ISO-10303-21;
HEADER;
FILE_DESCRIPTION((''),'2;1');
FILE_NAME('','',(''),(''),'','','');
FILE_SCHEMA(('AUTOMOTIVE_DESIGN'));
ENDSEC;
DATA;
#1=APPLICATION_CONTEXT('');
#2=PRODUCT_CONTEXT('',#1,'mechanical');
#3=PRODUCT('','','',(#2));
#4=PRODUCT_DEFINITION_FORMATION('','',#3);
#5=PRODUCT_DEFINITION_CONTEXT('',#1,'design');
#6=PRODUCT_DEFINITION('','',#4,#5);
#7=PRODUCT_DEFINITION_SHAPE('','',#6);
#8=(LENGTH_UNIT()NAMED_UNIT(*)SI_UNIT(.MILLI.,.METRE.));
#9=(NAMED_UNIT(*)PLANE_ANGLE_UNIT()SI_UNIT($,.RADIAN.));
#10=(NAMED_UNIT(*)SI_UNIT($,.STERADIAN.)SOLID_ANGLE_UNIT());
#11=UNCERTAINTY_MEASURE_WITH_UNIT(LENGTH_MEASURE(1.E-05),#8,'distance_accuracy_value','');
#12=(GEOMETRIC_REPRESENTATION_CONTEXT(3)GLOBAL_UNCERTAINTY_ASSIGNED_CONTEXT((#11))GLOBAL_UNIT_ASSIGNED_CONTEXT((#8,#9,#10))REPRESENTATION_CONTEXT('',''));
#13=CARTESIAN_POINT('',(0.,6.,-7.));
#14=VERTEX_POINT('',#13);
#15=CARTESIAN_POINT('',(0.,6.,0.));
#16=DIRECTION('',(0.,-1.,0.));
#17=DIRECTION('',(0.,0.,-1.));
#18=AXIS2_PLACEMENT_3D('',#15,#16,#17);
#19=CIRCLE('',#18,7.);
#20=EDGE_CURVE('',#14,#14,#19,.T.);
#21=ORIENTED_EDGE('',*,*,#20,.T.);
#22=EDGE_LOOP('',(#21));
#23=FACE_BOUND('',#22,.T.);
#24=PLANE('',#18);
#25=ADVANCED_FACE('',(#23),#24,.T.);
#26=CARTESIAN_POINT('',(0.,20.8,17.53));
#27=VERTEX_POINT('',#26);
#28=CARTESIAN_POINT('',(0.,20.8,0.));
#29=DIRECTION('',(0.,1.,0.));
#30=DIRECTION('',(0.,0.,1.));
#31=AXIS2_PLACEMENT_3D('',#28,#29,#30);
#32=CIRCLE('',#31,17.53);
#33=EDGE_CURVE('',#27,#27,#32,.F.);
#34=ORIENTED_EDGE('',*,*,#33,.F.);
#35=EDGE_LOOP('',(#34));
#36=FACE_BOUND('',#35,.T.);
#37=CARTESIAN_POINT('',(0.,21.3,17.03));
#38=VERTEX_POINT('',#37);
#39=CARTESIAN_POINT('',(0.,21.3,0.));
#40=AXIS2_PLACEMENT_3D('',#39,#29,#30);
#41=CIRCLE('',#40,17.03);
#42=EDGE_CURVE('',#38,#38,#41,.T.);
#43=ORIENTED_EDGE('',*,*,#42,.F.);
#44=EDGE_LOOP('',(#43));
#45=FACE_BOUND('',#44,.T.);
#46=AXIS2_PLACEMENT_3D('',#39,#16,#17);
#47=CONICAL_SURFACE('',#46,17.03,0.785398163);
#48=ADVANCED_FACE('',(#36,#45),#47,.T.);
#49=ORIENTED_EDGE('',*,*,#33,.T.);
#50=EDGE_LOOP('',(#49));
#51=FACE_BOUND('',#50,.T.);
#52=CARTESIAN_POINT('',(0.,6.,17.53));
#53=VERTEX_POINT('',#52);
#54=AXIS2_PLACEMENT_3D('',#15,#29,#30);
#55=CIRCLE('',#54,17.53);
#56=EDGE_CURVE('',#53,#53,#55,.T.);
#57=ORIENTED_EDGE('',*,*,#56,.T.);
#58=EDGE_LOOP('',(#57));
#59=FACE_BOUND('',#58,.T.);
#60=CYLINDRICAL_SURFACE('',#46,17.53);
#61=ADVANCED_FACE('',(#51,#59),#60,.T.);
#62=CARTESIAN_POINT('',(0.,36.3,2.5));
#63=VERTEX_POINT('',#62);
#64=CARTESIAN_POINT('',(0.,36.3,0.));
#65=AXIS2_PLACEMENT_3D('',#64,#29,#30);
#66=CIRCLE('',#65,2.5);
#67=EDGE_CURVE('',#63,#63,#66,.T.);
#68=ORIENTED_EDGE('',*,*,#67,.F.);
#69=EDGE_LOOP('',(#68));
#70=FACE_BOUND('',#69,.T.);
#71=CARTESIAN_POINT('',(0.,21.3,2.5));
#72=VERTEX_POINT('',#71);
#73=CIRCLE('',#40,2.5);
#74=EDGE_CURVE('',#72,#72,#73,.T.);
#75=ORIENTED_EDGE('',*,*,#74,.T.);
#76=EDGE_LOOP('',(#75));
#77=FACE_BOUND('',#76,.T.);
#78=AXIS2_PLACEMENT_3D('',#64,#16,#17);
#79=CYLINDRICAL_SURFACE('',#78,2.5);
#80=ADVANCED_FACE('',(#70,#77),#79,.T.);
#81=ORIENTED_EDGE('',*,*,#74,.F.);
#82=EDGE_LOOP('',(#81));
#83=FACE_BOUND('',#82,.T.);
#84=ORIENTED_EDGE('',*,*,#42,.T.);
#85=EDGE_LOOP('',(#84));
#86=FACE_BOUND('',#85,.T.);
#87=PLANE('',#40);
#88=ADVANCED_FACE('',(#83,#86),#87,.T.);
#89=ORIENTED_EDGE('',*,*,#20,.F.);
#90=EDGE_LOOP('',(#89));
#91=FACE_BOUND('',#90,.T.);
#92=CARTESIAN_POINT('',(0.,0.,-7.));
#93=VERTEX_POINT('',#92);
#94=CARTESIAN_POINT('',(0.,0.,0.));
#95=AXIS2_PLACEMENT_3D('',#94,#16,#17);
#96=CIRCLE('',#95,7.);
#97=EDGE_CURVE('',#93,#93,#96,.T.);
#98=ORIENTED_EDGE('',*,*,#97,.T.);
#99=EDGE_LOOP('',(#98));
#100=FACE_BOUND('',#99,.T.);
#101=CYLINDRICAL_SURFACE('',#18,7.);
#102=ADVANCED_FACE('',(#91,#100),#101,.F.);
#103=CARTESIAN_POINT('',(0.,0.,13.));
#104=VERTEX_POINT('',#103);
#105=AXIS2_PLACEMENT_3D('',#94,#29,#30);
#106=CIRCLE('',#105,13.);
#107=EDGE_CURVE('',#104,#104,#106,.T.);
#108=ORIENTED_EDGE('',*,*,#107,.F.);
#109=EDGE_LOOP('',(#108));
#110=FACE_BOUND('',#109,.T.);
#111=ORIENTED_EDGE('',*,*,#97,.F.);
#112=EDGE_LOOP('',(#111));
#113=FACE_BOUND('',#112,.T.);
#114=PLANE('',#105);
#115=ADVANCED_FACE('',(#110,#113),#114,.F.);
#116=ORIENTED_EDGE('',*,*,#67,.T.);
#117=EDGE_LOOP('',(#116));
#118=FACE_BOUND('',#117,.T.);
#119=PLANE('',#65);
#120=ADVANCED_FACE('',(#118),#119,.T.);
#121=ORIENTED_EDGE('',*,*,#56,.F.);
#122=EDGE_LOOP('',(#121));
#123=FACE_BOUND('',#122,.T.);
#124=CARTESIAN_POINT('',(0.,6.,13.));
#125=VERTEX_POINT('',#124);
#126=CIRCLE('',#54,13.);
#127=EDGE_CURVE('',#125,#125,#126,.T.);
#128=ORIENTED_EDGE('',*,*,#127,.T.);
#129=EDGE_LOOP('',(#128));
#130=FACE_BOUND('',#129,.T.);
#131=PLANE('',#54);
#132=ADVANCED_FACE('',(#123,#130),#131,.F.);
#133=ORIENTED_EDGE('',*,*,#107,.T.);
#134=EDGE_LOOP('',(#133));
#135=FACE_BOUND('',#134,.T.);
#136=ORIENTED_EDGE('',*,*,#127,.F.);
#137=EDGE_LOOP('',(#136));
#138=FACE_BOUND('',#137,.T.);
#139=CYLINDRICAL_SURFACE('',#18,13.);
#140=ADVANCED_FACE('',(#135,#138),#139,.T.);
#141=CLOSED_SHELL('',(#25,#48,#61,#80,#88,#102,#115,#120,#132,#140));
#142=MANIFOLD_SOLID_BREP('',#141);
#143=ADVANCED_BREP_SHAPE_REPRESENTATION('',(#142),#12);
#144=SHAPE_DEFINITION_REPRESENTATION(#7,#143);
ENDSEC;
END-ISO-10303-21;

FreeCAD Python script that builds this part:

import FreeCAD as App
import Part
import Sketcher
Q = App.Units.Quantity


def edges_at(feature, points):
    """Names of the edges that pass closest to the given points."""
    edges = feature.Shape.Edges
    near = lambda p: min(range(len(edges)), key=lambda i: edges[i].distToShape(Part.Vertex(*p))[0])
    return sorted({f"Edge{near(p) + 1}" for p in points})

doc = App.newDocument("Part")
body = doc.addObject("PartDesign::Body", "Body")

# Sketch on XZ plane
sketch1 = body.newObject("Sketcher::SketchObject", "Sketch")
sketch1.AttachmentSupport = (doc.getObject("XZ_Plane"), [""])
sketch1.MapMode = "FlatFace"
sketch1.addGeometry(Part.Circle(App.Vector(0, 0, 0), App.Vector(0, 0, 1), 13), False)
sketch1.addConstraint([
    Sketcher.Constraint("Coincident", 0, 3, -1, 1),
    Sketcher.Constraint("Diameter", 0, Q("26 mm")),
])
pad1 = body.newObject("PartDesign::Pad", "Pad")
pad1.Profile = sketch1
pad1.Length = 6
pad1.Reversed = True

# Sketch on XZ plane
sketch2 = body.newObject("Sketcher::SketchObject", "Sketch001")
sketch2.AttachmentSupport = (doc.getObject("XZ_Plane"), [""])
sketch2.MapMode = "FlatFace"
sketch2.AttachmentOffset = App.Placement(App.Vector(0, 0, -6), App.Rotation())
sketch2.addGeometry(Part.Circle(App.Vector(0, 0, 0), App.Vector(0, 0, 1), 18), False)
sketch2.addConstraint([
    Sketcher.Constraint("Coincident", 0, 3, -1, 1),
    Sketcher.Constraint("Diameter", 0, Q("35.06 mm")),
])
pad2 = body.newObject("PartDesign::Pad", "Pad001")
pad2.Profile = sketch2
pad2.Length = 15.3
pad2.Reversed = True

# Sketch on XZ plane
sketch3 = body.newObject("Sketcher::SketchObject", "Sketch002")
sketch3.AttachmentSupport = (doc.getObject("XZ_Plane"), [""])
sketch3.MapMode = "FlatFace"
sketch3.AttachmentOffset = App.Placement(App.Vector(0, 0, -21.3), App.Rotation())
sketch3.addGeometry(Part.Circle(App.Vector(0, 0, 0), App.Vector(0, 0, 1), 2.5), False)
sketch3.addConstraint([
    Sketcher.Constraint("Coincident", 0, 3, -1, 1),
    Sketcher.Constraint("Diameter", 0, Q("5 mm")),
])
pad3 = body.newObject("PartDesign::Pad", "Pad002")
pad3.Profile = sketch3
pad3.Length = 15
pad3.Reversed = True
doc.recompute()

chamfer = body.newObject("PartDesign::Chamfer", "Chamfer")
chamfer.Base = (pad3, edges_at(pad3, [(-17.53, 21.3, 0)]))
chamfer.Size = 0.5

# Sketch on XZ plane
sketch4 = body.newObject("Sketcher::SketchObject", "Sketch003")
sketch4.AttachmentSupport = (doc.getObject("XZ_Plane"), [""])
sketch4.MapMode = "FlatFace"
sketch4.addGeometry(Part.Circle(App.Vector(0, 0, 0), App.Vector(0, 0, 1), 7), False)
sketch4.addConstraint([
    Sketcher.Constraint("Coincident", 0, 3, -1, 1),
    Sketcher.Constraint("Diameter", 0, Q("14 mm")),
])
pocket1 = body.newObject("PartDesign::Pocket", "Pocket")
pocket1.Profile = sketch4
pocket1.Length = 6

doc.recompute()
